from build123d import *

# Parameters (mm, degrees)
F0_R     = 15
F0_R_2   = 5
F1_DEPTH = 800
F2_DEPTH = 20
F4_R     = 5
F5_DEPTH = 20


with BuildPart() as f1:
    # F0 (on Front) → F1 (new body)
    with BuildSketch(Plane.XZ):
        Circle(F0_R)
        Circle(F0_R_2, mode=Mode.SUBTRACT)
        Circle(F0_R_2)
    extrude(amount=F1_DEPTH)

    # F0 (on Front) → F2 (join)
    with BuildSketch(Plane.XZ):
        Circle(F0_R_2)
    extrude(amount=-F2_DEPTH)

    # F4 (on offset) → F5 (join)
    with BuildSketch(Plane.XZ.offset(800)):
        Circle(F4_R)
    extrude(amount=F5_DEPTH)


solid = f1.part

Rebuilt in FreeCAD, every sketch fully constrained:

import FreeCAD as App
import Part
import Sketcher
from FreeCAD import Vector

doc = App.newDocument("Part")
body = doc.addObject("PartDesign::Body", "Body")

# Sketch on XZ plane
sketch1 = body.newObject("Sketcher::SketchObject", "Sketch")
sketch1.AttachmentSupport = (doc.getObject("XZ_Plane"), [""])
sketch1.MapMode = "FlatFace"
sketch1.addGeometry(Part.Circle(Vector(0, 0, 0), Vector(0, 0, 1), 15), False)
sketch1.addConstraint([
    Sketcher.Constraint("Coincident", 0, 3, -1, 1),
    Sketcher.Constraint("Diameter", 0, 30.0),
])
pad1 = body.newObject("PartDesign::Pad", "Pad")
pad1.Profile = sketch1
pad1.Length = 800

# Sketch on XZ plane
sketch2 = body.newObject("Sketcher::SketchObject", "Sketch001")
sketch2.AttachmentSupport = (doc.getObject("XZ_Plane"), [""])
sketch2.MapMode = "FlatFace"
sketch2.addGeometry(Part.Circle(Vector(0, 0, 0), Vector(0, 0, 1), 5), False)
sketch2.addConstraint([
    Sketcher.Constraint("Coincident", 0, 3, -1, 1),
    Sketcher.Constraint("Diameter", 0, 10.0),
])
pad2 = body.newObject("PartDesign::Pad", "Pad001")
pad2.Profile = sketch2
pad2.Length = 20
pad2.Reversed = True

# Sketch on XZ plane
sketch3 = body.newObject("Sketcher::SketchObject", "Sketch002")
sketch3.AttachmentSupport = (doc.getObject("XZ_Plane"), [""])
sketch3.MapMode = "FlatFace"
sketch3.AttachmentOffset = App.Placement(Vector(0, 0, 800), App.Rotation())
sketch3.addGeometry(Part.Circle(Vector(0, 0, 0), Vector(0, 0, 1), 5), False)
sketch3.addConstraint([
    Sketcher.Constraint("Coincident", 0, 3, -1, 1),
    Sketcher.Constraint("Diameter", 0, 10.0),
])
pad3 = body.newObject("PartDesign::Pad", "Pad002")
pad3.Profile = sketch3
pad3.Length = 20

doc.recompute()
